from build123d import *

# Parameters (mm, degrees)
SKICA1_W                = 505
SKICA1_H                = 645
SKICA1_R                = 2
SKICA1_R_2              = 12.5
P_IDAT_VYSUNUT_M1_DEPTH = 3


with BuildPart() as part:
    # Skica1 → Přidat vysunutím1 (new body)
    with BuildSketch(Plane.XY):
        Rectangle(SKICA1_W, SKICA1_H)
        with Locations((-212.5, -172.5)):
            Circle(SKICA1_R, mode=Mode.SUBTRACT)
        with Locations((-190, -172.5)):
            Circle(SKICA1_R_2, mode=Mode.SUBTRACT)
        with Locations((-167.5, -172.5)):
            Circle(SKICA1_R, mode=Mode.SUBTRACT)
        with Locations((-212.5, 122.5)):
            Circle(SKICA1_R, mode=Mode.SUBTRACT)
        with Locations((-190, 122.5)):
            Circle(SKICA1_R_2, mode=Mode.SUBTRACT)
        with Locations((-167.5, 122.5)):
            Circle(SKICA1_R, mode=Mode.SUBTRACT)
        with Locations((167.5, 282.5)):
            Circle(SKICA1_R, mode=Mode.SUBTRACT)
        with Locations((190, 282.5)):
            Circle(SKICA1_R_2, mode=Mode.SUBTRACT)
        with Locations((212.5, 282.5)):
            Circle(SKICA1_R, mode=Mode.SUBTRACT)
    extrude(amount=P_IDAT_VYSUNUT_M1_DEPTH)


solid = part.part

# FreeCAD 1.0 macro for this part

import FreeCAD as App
import Part
import Sketcher
Q = App.Units.Quantity


def add_polygon(sketch, points):
    """Adds a closed chain of lines whose ends are joined by coincident constraints."""
    first, n = sketch.GeometryCount, len(points)
    for a, b in zip(points, points[1:] + points[:1]):
        sketch.addGeometry(Part.LineSegment(App.Vector(*a, 0), App.Vector(*b, 0)), False)
    for i in range(n):
        sketch.addConstraint(Sketcher.Constraint("Coincident", first + i, 2, first + (i + 1) % n, 1))

doc = App.newDocument("Part")
params = doc.addObject("Spreadsheet::Sheet", "Params")
for row, (alias, value) in enumerate([
    ("sketch1_diameter", "4 mm"),
    ("sketch1_diameter2", "25 mm"),
    ("sketch1_width", "505 mm"),
    ("sketch1_height", "645 mm"),
    ("pad1_length", "3 mm"),
], start=1):
    params.set(f"A{row}", alias)
    params.set(f"B{row}", "=" + value)
    params.setAlias(f"B{row}", alias)

body = doc.addObject("PartDesign::Body", "Body")

# Sketch on XY plane
sketch1 = body.newObject("Sketcher::SketchObject", "Sketch")
sketch1.AttachmentSupport = (doc.getObject("XY_Plane"), [""])
sketch1.MapMode = "FlatFace"
add_polygon(sketch1, [(-252.5, 322.5), (-252.5, -322.5), (252.5, -322.5), (252.5, 322.5)])  # lines 0-3
sketch1.addGeometry(Part.Circle(App.Vector(-212.5, -172.5, 0), App.Vector(0, 0, 1), 2), False)  # 4
sketch1.addGeometry(Part.Circle(App.Vector(-190, -172.5, 0), App.Vector(0, 0, 1), 12.5), False)  # 5
sketch1.addGeometry(Part.Circle(App.Vector(-167.5, -172.5, 0), App.Vector(0, 0, 1), 2), False)  # 6
sketch1.addGeometry(Part.Circle(App.Vector(-212.5, 122.5, 0), App.Vector(0, 0, 1), 2), False)  # 7
sketch1.addGeometry(Part.Circle(App.Vector(-190, 122.5, 0), App.Vector(0, 0, 1), 12.5), False)  # 8
sketch1.addGeometry(Part.Circle(App.Vector(-167.5, 122.5, 0), App.Vector(0, 0, 1), 2), False)  # 9
sketch1.addGeometry(Part.Circle(App.Vector(167.5, 282.5, 0), App.Vector(0, 0, 1), 2), False)  # 10
sketch1.addGeometry(Part.Circle(App.Vector(190, 282.5, 0), App.Vector(0, 0, 1), 12.5), False)  # 11
sketch1.addGeometry(Part.Circle(App.Vector(212.5, 282.5, 0), App.Vector(0, 0, 1), 2), False)  # 12
sketch1.addConstraint([
    Sketcher.Constraint("Vertical", 0),
    Sketcher.Constraint("Horizontal", 1),
    Sketcher.Constraint("Vertical", 2),
    Sketcher.Constraint("Horizontal", 3),
    Sketcher.Constraint("Equal", 4, 6),
    Sketcher.Constraint("Equal", 6, 7),
    Sketcher.Constraint("Equal", 5, 8),
    Sketcher.Constraint("Equal", 7, 9),
    Sketcher.Constraint("Equal", 9, 10),
    Sketcher.Constraint("Equal", 8, 11),
    Sketcher.Constraint("Equal", 10, 12),
    Sketcher.Constraint("Symmetric", 0, 2, 2, 2, -1, 1),
    Sketcher.Constraint("Horizontal", 4, 3, 5, 3),
    Sketcher.Constraint("Horizontal", 5, 3, 6, 3),
    Sketcher.Constraint("Horizontal", 7, 3, 8, 3),
    Sketcher.Constraint("Horizontal", 8, 3, 9, 3),
    Sketcher.Constraint("Horizontal", 10, 3, 11, 3),
    Sketcher.Constraint("Horizontal", 11, 3, 12, 3),
    Sketcher.Constraint("Vertical", 4, 3, 7, 3),
    Sketcher.Constraint("Vertical", 5, 3, 8, 3),
    Sketcher.Constraint("Vertical", 6, 3, 9, 3),
    Sketcher.Constraint("Diameter", 4, Q("4 mm")),
    Sketcher.Constraint("Diameter", 5, Q("25 mm")),
    Sketcher.Constraint("DistanceX", 1, 1, 1, 2, Q("505 mm")),
    Sketcher.Constraint("DistanceY", 0, 2, 0, 1, Q("645 mm")),
    Sketcher.Constraint("DistanceX", 5, 3, -1, 1, Q("190 mm")),
    Sketcher.Constraint("DistanceX", -1, 1, 11, 3, Q("190 mm")),
    Sketcher.Constraint("DistanceX", 4, 3, 6, 3, Q("45 mm")),
    Sketcher.Constraint("DistanceY", 4, 3, 7, 3, Q("295 mm")),
    Sketcher.Constraint("DistanceX", 9, 3, 10, 3, Q("335 mm")),
    Sketcher.Constraint("DistanceY", 9, 3, 10, 3, Q("160 mm")),
    Sketcher.Constraint("DistanceX", 10, 3, 12, 3, Q("45 mm")),
    Sketcher.Constraint("DistanceX", 0, 2, 4, 3, Q("40 mm")),
    Sketcher.Constraint("DistanceY", 0, 2, 4, 3, Q("150 mm")),
])
sketch1.setExpression("Constraints[25]", "Params.sketch1_diameter")
sketch1.setExpression("Constraints[26]", "Params.sketch1_diameter2")
sketch1.setExpression("Constraints[27]", "Params.sketch1_width")
sketch1.setExpression("Constraints[28]", "Params.sketch1_height")
pad1 = body.newObject("PartDesign::Pad", "Pad")
pad1.Profile = sketch1
pad1.setExpression("Length", "Params.pad1_length")

doc.recompute()
